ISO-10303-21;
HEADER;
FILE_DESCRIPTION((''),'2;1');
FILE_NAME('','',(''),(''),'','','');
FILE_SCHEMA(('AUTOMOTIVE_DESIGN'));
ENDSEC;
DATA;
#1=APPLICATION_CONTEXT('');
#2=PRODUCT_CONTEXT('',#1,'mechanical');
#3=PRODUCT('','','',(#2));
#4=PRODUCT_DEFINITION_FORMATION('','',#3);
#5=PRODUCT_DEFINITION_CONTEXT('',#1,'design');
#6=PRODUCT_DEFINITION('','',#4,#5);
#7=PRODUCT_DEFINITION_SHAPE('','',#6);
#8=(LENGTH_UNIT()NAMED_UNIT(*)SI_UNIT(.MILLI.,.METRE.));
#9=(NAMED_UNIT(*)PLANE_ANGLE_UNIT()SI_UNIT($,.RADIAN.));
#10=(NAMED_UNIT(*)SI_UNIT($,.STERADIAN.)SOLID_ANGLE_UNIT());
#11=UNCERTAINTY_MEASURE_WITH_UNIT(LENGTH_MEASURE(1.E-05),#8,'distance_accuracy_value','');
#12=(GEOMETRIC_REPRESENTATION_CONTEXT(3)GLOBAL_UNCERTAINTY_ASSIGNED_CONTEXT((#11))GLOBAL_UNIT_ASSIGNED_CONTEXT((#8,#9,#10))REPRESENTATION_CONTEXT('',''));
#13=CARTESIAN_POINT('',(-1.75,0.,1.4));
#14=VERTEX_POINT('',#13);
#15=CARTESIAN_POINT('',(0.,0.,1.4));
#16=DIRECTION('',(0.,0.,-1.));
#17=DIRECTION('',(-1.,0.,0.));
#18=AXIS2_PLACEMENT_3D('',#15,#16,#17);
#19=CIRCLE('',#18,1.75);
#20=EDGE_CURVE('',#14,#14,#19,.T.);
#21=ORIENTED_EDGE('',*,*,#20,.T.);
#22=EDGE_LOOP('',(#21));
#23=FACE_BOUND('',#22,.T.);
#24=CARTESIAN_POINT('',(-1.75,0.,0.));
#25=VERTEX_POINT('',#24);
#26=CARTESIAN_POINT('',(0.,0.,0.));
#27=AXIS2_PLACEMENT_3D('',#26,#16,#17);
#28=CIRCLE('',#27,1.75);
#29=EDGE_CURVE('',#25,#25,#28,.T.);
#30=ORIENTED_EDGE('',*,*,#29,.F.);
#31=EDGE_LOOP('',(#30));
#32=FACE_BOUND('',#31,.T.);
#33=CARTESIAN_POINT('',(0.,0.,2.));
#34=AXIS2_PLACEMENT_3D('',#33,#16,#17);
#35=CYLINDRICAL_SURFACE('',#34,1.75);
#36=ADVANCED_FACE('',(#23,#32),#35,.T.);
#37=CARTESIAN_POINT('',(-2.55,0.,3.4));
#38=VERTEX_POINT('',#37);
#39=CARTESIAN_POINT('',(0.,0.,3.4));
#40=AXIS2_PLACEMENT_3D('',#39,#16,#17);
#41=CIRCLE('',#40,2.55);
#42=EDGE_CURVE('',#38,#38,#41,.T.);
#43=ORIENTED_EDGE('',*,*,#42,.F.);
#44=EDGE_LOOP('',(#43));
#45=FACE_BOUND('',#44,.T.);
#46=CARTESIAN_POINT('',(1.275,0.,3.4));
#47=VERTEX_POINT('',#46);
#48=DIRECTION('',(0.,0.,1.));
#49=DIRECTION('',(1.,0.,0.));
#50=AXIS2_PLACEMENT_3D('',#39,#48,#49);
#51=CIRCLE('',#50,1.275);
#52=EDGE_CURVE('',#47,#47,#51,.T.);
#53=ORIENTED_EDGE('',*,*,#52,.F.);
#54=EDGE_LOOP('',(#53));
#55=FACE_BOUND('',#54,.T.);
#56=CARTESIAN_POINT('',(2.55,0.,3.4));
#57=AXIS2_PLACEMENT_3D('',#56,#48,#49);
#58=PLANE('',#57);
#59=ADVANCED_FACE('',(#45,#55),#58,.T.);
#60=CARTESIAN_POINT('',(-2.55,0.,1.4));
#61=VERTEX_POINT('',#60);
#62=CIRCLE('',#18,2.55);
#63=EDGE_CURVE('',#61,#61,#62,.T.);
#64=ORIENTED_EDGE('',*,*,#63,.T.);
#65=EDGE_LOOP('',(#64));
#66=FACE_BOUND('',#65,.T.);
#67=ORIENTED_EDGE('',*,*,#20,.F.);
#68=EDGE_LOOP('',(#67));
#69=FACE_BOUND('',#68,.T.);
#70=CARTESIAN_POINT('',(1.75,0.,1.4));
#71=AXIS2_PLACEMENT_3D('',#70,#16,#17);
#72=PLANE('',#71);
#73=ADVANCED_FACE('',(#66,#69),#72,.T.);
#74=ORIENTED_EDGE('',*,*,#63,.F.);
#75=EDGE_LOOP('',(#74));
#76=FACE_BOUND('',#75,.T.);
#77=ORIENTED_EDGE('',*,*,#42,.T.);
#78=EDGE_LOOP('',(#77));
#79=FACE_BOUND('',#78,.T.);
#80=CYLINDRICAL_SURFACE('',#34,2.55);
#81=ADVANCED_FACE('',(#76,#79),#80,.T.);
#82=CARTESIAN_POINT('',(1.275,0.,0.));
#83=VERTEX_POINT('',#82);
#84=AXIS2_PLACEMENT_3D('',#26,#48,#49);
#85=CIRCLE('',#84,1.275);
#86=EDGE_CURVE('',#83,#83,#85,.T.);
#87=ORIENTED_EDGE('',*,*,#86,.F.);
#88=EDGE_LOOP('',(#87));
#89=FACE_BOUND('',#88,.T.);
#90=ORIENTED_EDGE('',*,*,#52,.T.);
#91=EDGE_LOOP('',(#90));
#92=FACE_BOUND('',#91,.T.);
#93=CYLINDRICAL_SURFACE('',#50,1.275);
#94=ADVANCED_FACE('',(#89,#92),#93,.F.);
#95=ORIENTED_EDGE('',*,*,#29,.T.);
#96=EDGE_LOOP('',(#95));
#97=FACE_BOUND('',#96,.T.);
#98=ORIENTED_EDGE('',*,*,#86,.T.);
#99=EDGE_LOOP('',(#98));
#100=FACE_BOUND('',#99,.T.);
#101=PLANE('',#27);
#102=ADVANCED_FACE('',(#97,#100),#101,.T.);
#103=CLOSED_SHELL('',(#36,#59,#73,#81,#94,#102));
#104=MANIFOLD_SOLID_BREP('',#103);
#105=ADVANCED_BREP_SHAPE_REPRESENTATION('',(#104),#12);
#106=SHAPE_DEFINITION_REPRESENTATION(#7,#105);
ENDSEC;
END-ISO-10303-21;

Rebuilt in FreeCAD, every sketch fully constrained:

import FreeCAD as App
import Part
import Sketcher

V = App.Vector

doc = App.newDocument("Part")
body = doc.addObject("PartDesign::Body", "Body")

sketch1 = doc.addObject("Sketcher::SketchObject", "Sketch")
body.addObject(sketch1)
sketch1.AttachmentSupport = (doc.XZ_Plane, [""])
sketch1.MapMode = "FlatFace"
sketch1.addGeometry([
    Part.LineSegment(V(2.5, 3.4, 0), V(0, 3.4, 0)),
    Part.LineSegment(V(0, 3.4, 0), V(0, 0, 0)),
    Part.LineSegment(V(0, 0, 0), V(1.8, 0, 0)),
    Part.LineSegment(V(1.8, 0, 0), V(1.8, 1.4, 0)),
    Part.LineSegment(V(1.8, 1.4, 0), V(2.5, 1.4, 0)),
    Part.LineSegment(V(2.5, 1.4, 0), V(2.5, 3.4, 0)),
], False)
sketch1.addConstraint([
    Sketcher.Constraint("Coincident", 0, 2, 1, 1),
    Sketcher.Constraint("Coincident", 1, 2, 2, 1),
    Sketcher.Constraint("Coincident", 2, 2, 3, 1),
    Sketcher.Constraint("Coincident", 3, 2, 4, 1),
    Sketcher.Constraint("Coincident", 4, 2, 5, 1),
    Sketcher.Constraint("Coincident", 5, 2, 0, 1),
    Sketcher.Constraint("Horizontal", 0),
    Sketcher.Constraint("Vertical", 1),
    Sketcher.Constraint("Horizontal", 2),
    Sketcher.Constraint("Vertical", 3),
    Sketcher.Constraint("Horizontal", 4),
    Sketcher.Constraint("Vertical", 5),
    Sketcher.Constraint("Coincident", 1, 2, -1, 1),
    Sketcher.Constraint("DistanceY", 5, 1, 5, 2, 2.0),
    Sketcher.Constraint("DistanceX", 4, 1, 4, 2, 0.8),
    Sketcher.Constraint("DistanceY", 1, 2, 1, 1, 3.4),
    Sketcher.Constraint("DistanceX", 0, 2, 0, 1, 2.55),
])
revolution = doc.addObject("PartDesign::Revolution", "Revolution")
body.addObject(revolution)
revolution.Profile = sketch1
revolution.ReferenceAxis = (sketch1, ["V_Axis"])
revolution.Angle = 360

sketch2 = doc.addObject("Sketcher::SketchObject", "Sketch001")
body.addObject(sketch2)
sketch2.AttachmentSupport = (doc.XY_Plane, [""])
sketch2.MapMode = "FlatFace"
sketch2.AttachmentOffset = App.Placement(V(0, 0, 3.4), App.Rotation())
sketch2.addGeometry(Part.Circle(V(0, 0, 0), V(0, 0, 1), 1.3), False)
sketch2.addConstraint([
    Sketcher.Constraint("Coincident", 0, 3, -1, 1),
    Sketcher.Constraint("Diameter", 0, 2.55),
])
doc.recompute()
hole = doc.addObject("PartDesign::Hole", "Hole")
body.addObject(hole)
hole.Profile = sketch2
hole.ThreadType = "None"
hole.Diameter = 2.55
hole.DepthType = "ThroughAll"

doc.recompute()
